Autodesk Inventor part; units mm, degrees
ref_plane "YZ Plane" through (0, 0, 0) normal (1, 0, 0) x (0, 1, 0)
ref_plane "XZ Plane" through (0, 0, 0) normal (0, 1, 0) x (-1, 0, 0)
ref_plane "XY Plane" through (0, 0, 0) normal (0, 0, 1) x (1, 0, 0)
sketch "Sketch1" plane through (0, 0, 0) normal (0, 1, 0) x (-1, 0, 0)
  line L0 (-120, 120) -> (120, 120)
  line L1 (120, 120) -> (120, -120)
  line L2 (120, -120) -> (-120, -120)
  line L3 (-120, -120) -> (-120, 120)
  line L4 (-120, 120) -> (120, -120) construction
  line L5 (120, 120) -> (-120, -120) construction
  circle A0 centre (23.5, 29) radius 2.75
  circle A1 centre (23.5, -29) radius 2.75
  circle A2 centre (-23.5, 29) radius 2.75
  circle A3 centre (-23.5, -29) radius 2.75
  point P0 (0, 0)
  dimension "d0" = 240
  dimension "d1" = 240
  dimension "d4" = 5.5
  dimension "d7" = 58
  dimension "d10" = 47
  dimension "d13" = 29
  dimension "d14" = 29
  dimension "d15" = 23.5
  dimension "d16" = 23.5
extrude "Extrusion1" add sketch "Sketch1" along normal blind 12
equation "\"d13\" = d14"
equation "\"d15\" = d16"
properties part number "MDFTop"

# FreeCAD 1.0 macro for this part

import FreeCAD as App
import Part
import Sketcher
from FreeCAD import Vector

doc = App.newDocument("Part")
body = doc.addObject("PartDesign::Body", "Body")

# Sketch on XZ plane
sketch1 = doc.addObject("Sketcher::SketchObject", "Sketch")
body.addObject(sketch1)
sketch1.AttachmentSupport = (doc.XZ_Plane, [""])
sketch1.MapMode = "FlatFace"
sketch1.addGeometry([
    Part.LineSegment(Vector(-120, 120, 0), Vector(120, 120, 0)),  # 0
    Part.LineSegment(Vector(120, 120, 0), Vector(120, -120, 0)),  # 1
    Part.LineSegment(Vector(120, -120, 0), Vector(-120, -120, 0)),  # 2
    Part.LineSegment(Vector(-120, -120, 0), Vector(-120, 120, 0)),  # 3
    Part.Circle(Vector(23.5, -29, 0), Vector(0, 0, 1), 2.8),  # 4
    Part.Circle(Vector(-23.5, -29, 0), Vector(0, 0, 1), 2.8),  # 5
    Part.Circle(Vector(23.5, 29, 0), Vector(0, 0, 1), 2.8),  # 6
    Part.Circle(Vector(-23.5, 29, 0), Vector(0, 0, 1), 2.8),  # 7
], False)
sketch1.addConstraint([
    Sketcher.Constraint("Coincident", 0, 2, 1, 1),
    Sketcher.Constraint("Coincident", 1, 2, 2, 1),
    Sketcher.Constraint("Coincident", 2, 2, 3, 1),
    Sketcher.Constraint("Coincident", 3, 2, 0, 1),
    Sketcher.Constraint("Horizontal", 0),
    Sketcher.Constraint("Vertical", 1),
    Sketcher.Constraint("Horizontal", 2),
    Sketcher.Constraint("Vertical", 3),
    Sketcher.Constraint("Equal", 4, 5),
    Sketcher.Constraint("Equal", 5, 6),
    Sketcher.Constraint("Equal", 6, 7),
    Sketcher.Constraint("Symmetric", 5, 3, 6, 3, -1, 1),
    Sketcher.Constraint("Symmetric", 4, 3, 7, 3, -1, 1),
    Sketcher.Constraint("Symmetric", 0, 2, 2, 2, -1, 1),
    Sketcher.Constraint("Symmetric", 4, 3, 5, 3, -2),
    Sketcher.Constraint("Equal", 2, 1),
    Sketcher.Constraint("Diameter", 4, 5.5),
    Sketcher.Constraint("DistanceX", 0, 1, 0, 2, 240.0),
    Sketcher.Constraint("DistanceY", 4, 3, -1, 1, 29.0),
    Sketcher.Constraint("DistanceX", 5, 3, 4, 3, 47.0),
])
pad1 = doc.addObject("PartDesign::Pad", "Pad")
body.addObject(pad1)
pad1.Profile = sketch1
pad1.Length = 12
pad1.Reversed = True

doc.recompute()
